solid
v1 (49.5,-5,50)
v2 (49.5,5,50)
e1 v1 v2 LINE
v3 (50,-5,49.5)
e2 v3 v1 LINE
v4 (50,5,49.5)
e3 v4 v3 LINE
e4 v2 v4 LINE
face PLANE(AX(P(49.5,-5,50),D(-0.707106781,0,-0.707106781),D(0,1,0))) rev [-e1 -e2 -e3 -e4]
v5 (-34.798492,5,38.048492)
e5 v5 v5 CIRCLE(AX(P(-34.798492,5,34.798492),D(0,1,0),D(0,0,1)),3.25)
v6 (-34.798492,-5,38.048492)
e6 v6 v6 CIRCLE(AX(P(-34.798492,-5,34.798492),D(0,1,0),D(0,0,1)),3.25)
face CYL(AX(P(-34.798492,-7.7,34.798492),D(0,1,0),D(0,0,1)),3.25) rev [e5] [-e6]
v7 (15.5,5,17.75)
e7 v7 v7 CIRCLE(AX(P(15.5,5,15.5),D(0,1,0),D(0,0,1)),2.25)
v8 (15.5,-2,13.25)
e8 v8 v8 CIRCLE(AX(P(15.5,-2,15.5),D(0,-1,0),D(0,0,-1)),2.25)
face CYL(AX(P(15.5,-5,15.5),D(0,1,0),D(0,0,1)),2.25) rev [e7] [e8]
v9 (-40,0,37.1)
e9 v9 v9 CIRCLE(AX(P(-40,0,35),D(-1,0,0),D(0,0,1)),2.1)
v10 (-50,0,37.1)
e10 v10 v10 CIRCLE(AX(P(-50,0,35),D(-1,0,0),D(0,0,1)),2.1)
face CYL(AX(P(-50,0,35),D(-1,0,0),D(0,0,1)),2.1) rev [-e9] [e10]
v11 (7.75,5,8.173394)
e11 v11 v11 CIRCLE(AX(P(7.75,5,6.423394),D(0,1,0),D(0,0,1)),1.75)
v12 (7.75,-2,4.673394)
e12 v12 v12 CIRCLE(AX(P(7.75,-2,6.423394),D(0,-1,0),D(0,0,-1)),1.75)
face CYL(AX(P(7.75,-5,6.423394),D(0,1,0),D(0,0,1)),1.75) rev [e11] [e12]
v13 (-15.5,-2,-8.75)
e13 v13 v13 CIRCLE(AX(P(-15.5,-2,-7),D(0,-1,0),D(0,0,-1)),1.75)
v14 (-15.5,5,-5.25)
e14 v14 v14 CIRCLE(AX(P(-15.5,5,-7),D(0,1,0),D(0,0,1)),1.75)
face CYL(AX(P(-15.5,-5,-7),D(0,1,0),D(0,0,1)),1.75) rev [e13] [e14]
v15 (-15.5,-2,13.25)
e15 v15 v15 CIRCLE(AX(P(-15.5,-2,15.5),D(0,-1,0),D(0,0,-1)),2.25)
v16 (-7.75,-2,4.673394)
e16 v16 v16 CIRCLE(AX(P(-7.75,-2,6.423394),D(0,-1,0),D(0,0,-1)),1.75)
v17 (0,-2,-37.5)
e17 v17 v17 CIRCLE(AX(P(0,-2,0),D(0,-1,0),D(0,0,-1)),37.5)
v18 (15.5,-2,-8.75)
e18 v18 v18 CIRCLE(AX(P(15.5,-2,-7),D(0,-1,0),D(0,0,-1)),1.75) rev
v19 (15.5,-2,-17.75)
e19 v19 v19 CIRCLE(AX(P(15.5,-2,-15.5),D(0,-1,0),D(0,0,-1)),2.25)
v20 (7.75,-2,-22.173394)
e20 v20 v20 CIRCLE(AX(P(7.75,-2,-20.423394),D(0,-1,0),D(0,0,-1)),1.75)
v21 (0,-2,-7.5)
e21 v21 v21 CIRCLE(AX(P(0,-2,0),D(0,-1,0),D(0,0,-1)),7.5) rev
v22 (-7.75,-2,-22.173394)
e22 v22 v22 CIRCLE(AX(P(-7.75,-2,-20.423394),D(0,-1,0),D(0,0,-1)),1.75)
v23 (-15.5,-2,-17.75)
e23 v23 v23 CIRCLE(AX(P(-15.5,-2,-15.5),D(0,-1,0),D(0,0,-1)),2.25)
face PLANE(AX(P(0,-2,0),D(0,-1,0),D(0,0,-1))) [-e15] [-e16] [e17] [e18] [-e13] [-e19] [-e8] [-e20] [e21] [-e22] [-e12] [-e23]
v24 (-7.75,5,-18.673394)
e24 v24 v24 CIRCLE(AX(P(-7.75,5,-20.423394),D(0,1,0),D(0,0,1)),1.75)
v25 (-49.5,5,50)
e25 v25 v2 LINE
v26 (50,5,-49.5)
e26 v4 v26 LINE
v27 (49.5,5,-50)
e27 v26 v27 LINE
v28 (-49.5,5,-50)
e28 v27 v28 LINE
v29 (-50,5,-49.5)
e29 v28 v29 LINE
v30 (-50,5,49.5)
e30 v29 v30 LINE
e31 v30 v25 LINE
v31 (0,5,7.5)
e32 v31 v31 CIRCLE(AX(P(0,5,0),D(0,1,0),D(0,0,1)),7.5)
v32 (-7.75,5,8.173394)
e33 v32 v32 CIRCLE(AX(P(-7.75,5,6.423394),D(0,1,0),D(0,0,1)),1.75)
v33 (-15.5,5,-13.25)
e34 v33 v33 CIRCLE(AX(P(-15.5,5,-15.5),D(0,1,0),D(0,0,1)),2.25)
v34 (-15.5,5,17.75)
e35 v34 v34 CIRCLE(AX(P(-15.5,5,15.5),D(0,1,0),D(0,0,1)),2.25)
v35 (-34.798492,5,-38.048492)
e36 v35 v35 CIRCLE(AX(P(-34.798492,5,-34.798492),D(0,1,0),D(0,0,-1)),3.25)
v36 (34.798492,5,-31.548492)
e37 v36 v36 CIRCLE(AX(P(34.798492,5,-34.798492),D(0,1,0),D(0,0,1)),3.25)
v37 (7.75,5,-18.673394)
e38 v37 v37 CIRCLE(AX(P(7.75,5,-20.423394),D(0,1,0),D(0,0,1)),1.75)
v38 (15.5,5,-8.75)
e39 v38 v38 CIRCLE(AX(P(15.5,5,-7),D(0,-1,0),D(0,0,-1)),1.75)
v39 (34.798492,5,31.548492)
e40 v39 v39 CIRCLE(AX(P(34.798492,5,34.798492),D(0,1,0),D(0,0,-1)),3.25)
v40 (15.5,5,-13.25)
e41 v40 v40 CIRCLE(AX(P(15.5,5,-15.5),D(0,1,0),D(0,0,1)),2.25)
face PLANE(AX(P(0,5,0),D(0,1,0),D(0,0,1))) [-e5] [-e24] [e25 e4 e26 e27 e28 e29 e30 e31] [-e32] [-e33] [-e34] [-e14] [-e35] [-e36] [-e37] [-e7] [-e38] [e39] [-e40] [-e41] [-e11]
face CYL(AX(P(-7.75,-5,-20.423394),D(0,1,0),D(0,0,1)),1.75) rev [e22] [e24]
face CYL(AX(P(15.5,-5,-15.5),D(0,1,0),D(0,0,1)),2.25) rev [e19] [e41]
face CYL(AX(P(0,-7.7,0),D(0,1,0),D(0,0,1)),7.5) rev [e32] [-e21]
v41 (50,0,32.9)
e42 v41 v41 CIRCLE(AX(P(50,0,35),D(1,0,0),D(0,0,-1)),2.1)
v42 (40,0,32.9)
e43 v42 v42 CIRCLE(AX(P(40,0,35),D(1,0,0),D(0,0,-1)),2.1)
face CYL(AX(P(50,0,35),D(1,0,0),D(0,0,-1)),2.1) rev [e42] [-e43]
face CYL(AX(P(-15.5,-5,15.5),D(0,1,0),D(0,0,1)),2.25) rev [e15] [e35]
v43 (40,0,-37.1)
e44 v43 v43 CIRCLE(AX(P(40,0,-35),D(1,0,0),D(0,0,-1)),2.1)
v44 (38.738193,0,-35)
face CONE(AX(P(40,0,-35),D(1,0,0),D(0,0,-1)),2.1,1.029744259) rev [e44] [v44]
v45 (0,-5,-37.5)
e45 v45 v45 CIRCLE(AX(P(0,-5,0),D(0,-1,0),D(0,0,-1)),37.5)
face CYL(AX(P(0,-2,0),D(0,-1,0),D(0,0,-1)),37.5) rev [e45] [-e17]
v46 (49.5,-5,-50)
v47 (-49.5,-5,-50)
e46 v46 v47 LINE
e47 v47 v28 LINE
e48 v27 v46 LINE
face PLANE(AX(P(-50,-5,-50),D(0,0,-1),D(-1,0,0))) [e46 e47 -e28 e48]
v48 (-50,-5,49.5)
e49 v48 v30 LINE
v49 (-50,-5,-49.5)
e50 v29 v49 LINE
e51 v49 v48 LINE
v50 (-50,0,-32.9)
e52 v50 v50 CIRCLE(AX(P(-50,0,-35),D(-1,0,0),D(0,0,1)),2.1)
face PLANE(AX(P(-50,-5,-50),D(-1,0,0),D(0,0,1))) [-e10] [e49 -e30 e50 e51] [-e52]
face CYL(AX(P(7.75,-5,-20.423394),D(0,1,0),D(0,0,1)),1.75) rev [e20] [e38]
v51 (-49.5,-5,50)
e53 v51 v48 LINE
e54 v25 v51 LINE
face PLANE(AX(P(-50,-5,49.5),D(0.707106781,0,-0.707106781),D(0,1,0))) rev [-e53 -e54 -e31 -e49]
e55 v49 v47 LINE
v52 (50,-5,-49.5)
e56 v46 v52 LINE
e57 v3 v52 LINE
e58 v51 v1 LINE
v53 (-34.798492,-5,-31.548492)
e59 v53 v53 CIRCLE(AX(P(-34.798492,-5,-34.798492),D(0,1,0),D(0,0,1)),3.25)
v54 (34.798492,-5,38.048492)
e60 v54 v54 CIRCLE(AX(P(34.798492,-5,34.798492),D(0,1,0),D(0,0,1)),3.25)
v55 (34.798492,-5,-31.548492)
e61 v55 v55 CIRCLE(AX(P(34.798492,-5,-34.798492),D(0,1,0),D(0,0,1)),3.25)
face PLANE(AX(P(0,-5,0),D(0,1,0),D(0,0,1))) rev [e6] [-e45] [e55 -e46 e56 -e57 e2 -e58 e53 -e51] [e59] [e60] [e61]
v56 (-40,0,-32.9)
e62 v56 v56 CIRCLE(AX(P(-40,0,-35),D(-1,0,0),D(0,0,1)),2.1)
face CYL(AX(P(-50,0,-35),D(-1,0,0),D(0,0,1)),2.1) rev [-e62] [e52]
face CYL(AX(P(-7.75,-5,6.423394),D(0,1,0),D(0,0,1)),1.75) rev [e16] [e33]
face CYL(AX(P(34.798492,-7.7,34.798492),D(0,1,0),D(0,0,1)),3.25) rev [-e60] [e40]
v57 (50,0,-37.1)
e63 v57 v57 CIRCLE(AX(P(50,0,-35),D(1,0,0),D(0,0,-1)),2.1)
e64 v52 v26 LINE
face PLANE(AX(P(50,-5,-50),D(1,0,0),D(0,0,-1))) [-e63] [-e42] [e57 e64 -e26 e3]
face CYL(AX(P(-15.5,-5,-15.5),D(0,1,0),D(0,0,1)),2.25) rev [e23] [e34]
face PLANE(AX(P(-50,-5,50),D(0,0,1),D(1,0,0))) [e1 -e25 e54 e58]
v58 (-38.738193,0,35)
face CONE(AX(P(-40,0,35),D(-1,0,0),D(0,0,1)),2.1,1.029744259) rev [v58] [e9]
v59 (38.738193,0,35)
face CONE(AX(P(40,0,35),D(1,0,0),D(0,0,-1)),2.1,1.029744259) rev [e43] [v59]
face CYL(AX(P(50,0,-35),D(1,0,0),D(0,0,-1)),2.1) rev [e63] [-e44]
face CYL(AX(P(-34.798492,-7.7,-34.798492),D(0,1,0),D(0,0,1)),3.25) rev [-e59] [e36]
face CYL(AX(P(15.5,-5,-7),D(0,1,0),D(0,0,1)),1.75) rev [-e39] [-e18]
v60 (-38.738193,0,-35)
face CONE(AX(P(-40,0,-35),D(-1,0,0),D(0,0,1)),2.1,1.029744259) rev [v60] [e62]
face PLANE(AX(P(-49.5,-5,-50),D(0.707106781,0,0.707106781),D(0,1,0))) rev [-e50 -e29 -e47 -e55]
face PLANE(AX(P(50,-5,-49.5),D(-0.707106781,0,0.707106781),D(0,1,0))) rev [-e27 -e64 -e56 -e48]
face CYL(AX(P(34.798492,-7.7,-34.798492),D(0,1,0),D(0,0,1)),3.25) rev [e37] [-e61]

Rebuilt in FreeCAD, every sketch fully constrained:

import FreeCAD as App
import Part
import Sketcher
from FreeCAD import Vector
Q = App.Units.Quantity


def edges_at(feature, points):
    """Names of the edges that pass closest to the given points."""
    edges = feature.Shape.Edges
    near = lambda p: min(range(len(edges)), key=lambda i: edges[i].distToShape(Part.Vertex(*p))[0])
    return sorted({f"Edge{near(p) + 1}" for p in points})

doc = App.newDocument("Part")
body = doc.addObject("PartDesign::Body", "Body")

# Sketch on XZ plane
sketch1 = doc.addObject("Sketcher::SketchObject", "Sketch")
body.addObject(sketch1)
sketch1.AttachmentSupport = (doc.XZ_Plane, [""])
sketch1.MapMode = "FlatFace"
sketch1.addGeometry([
    Part.LineSegment(Vector(-50, -50, 0), Vector(-50, 50, 0)),
    Part.LineSegment(Vector(-50, 50, 0), Vector(50, 50, 0)),
    Part.LineSegment(Vector(50, 50, 0), Vector(50, -50, 0)),
    Part.LineSegment(Vector(50, -50, 0), Vector(-50, -50, 0)),
], False)
sketch1.addConstraint([
    Sketcher.Constraint("Coincident", 0, 2, 1, 1),
    Sketcher.Constraint("Coincident", 1, 2, 2, 1),
    Sketcher.Constraint("Coincident", 2, 2, 3, 1),
    Sketcher.Constraint("Coincident", 3, 2, 0, 1),
    Sketcher.Constraint("Vertical", 0),
    Sketcher.Constraint("Horizontal", 1),
    Sketcher.Constraint("Vertical", 2),
    Sketcher.Constraint("Horizontal", 3),
    Sketcher.Constraint("Symmetric", 0, 2, 2, 2, -1, 1),
    Sketcher.Constraint("Equal", 3, 0),
    Sketcher.Constraint("DistanceX", 1, 1, 1, 2, Q("100 mm")),
])
pad1 = doc.addObject("PartDesign::Pad", "Pad")
body.addObject(pad1)
pad1.Profile = sketch1
pad1.Type = "TwoLengths"
pad1.Length = 5
pad1.Length2 = 5
pad1.Reversed = True

# Sketch on XZ plane
sketch2 = doc.addObject("Sketcher::SketchObject", "Sketch001")
body.addObject(sketch2)
sketch2.AttachmentSupport = (doc.XZ_Plane, [""])
sketch2.MapMode = "FlatFace"
sketch2.AttachmentOffset = App.Placement(Vector(0, 0, -5), App.Rotation())
sketch2.addGeometry([
    Part.Circle(Vector(0, 0, 0), Vector(0, 0, 1), 7.5),  # 0
    Part.Circle(Vector(-34.798492, -34.798492, 0), Vector(0, 0, 1), 3.25),  # 1
    Part.Circle(Vector(34.798492, -34.798492, 0), Vector(0, 0, 1), 3.25),  # 2
    Part.Circle(Vector(34.798492, 34.798492, 0), Vector(0, 0, 1), 3.25),  # 3
    Part.Circle(Vector(-34.798492, 34.798492, 0), Vector(0, 0, 1), 3.25),  # 4
], False)
sketch2.addConstraint([
    Sketcher.Constraint("Coincident", 0, 3, -1, 1),
    Sketcher.Constraint("Equal", 1, 2),
    Sketcher.Constraint("Equal", 2, 3),
    Sketcher.Constraint("Equal", 3, 4),
    Sketcher.Constraint("Symmetric", 1, 3, 3, 3, -1, 1),
    Sketcher.Constraint("Symmetric", 2, 3, 4, 3, -1, 1),
    Sketcher.Constraint("Symmetric", 1, 3, 2, 3, -2),
    Sketcher.Constraint("Diameter", 0, Q("15 mm")),
    Sketcher.Constraint("Diameter", 1, Q("6.5 mm")),
    Sketcher.Constraint("DistanceX", 1, 3, -1, 1, Q("34.798492 mm")),
    Sketcher.Constraint("DistanceY", 1, 3, -1, 1, Q("34.798492 mm")),
])
pocket1 = doc.addObject("PartDesign::Pocket", "Pocket")
body.addObject(pocket1)
pocket1.Profile = sketch2
pocket1.Length = 12.7
pocket1.Reversed = True

# Sketch on XZ plane
sketch3 = doc.addObject("Sketcher::SketchObject", "Sketch002")
body.addObject(sketch3)
sketch3.AttachmentSupport = (doc.XZ_Plane, [""])
sketch3.MapMode = "FlatFace"
sketch3.addGeometry([
    Part.LineSegment(Vector(-38.738193, -35, 0), Vector(-50, -35, 0)),
    Part.LineSegment(Vector(-50, -35, 0), Vector(-50, -32.9, 0)),
    Part.LineSegment(Vector(-50, -32.9, 0), Vector(-40, -32.9, 0)),
    Part.LineSegment(Vector(-40, -32.9, 0), Vector(-38.738193, -35, 0)),
], False)
sketch3.addGeometry(Part.LineSegment(Vector(-50, -35, 0), Vector(-38.738193, -35, 0)), True)  # axis
sketch3.addConstraint([
    Sketcher.Constraint("Coincident", 0, 2, 1, 1),
    Sketcher.Constraint("Coincident", 1, 2, 2, 1),
    Sketcher.Constraint("Coincident", 2, 2, 3, 1),
    Sketcher.Constraint("Coincident", 3, 2, 0, 1),
    Sketcher.Constraint("Horizontal", 0),
    Sketcher.Constraint("Vertical", 1),
    Sketcher.Constraint("Horizontal", 2),
    Sketcher.Constraint("Horizontal", 4),
    Sketcher.Constraint("Coincident", 4, 1, 0, 2),
    Sketcher.Constraint("Equal", 0, 4),
    Sketcher.Constraint("DistanceX", 2, 1, 2, 2, Q("10 mm")),
    Sketcher.Constraint("Angle", 3, Q("-59 deg")),
    Sketcher.Constraint("DistanceY", 1, 1, 1, 2, Q("2.1 mm")),
    Sketcher.Constraint("DistanceX", 0, 2, -1, 1, Q("50 mm")),
    Sketcher.Constraint("DistanceY", 0, 2, -1, 1, Q("35 mm")),
])
groove = doc.addObject("PartDesign::Groove", "Groove")
body.addObject(groove)
groove.Profile = sketch3
groove.ReferenceAxis = (sketch3, ["Axis0"])
groove.Angle = 360
doc.recompute()

linearpattern = doc.addObject("PartDesign::LinearPattern", "LinearPattern")
body.addObject(linearpattern)
linearpattern.Originals = [groove]
linearpattern.Direction = (doc.Z_Axis, [""])
linearpattern.Mode = "offset"
linearpattern.Offset = 70
linearpattern.Occurrences = 2
body.Tip = linearpattern

# Sketch on XZ plane
sketch4 = doc.addObject("Sketcher::SketchObject", "Sketch003")
body.addObject(sketch4)
sketch4.AttachmentSupport = (doc.XZ_Plane, [""])
sketch4.MapMode = "FlatFace"
sketch4.AttachmentOffset = App.Placement(Vector(0, 0, 5), App.Rotation())
sketch4.addGeometry(Part.Circle(Vector(0, 0, 0), Vector(0, 0, 1), 37.5), False)
sketch4.addConstraint([
    Sketcher.Constraint("Coincident", 0, 3, -1, 1),
    Sketcher.Constraint("Diameter", 0, Q("75 mm")),
])
pocket2 = doc.addObject("PartDesign::Pocket", "Pocket001")
body.addObject(pocket2)
pocket2.Profile = sketch4
pocket2.Length = 3
doc.recompute()

chamfer = doc.addObject("PartDesign::Chamfer", "Chamfer")
body.addObject(chamfer)
chamfer.Base = (pocket2, edges_at(pocket2, [
    (-50, 0, -50),
    (50, 0, -50),
    (50, 0, 50),
    (-50, 0, 50),
]))
chamfer.Size = 0.5
doc.recompute()

mirrored = doc.addObject("PartDesign::Mirrored", "Mirrored")
body.addObject(mirrored)
mirrored.Originals = [groove]
mirrored.MirrorPlane = (doc.YZ_Plane, [""])
body.Tip = mirrored

# Sketch on XZ plane
sketch5 = doc.addObject("Sketcher::SketchObject", "Sketch004")
body.addObject(sketch5)
sketch5.AttachmentSupport = (doc.XZ_Plane, [""])
sketch5.MapMode = "FlatFace"
sketch5.addGeometry([
    Part.LineSegment(Vector(50, 35, 0), Vector(38.738193, 35, 0)),
    Part.LineSegment(Vector(38.738193, 35, 0), Vector(40, 37.1, 0)),
    Part.LineSegment(Vector(40, 37.1, 0), Vector(50, 37.1, 0)),
    Part.LineSegment(Vector(50, 37.1, 0), Vector(50, 35, 0)),
], False)
sketch5.addGeometry(Part.LineSegment(Vector(38.738193, 35, 0), Vector(50, 35, 0)), True)  # axis
sketch5.addConstraint([
    Sketcher.Constraint("Coincident", 0, 2, 1, 1),
    Sketcher.Constraint("Coincident", 1, 2, 2, 1),
    Sketcher.Constraint("Coincident", 2, 2, 3, 1),
    Sketcher.Constraint("Coincident", 3, 2, 0, 1),
    Sketcher.Constraint("Horizontal", 0),
    Sketcher.Constraint("Horizontal", 2),
    Sketcher.Constraint("Vertical", 3),
    Sketcher.Constraint("Horizontal", 4),
    Sketcher.Constraint("Coincident", 4, 1, 0, 2),
    Sketcher.Constraint("Vertical", 2, 2, 4, 2),
    Sketcher.Constraint("DistanceX", 2, 1, 2, 2, Q("10 mm")),
    Sketcher.Constraint("Angle", 1, Q("59 deg")),
    Sketcher.Constraint("DistanceY", 3, 2, 3, 1, Q("2.1 mm")),
    Sketcher.Constraint("DistanceY", -1, 1, 0, 2, Q("35 mm")),
    Sketcher.Constraint("DistanceX", -1, 1, 1, 2, Q("40 mm")),
])
groove2 = doc.addObject("PartDesign::Groove", "Groove001")
body.addObject(groove2)
groove2.Profile = sketch5
groove2.ReferenceAxis = (sketch5, ["Axis0"])
groove2.Angle = 360

# Sketch on XZ plane
sketch6 = doc.addObject("Sketcher::SketchObject", "Sketch005")
body.addObject(sketch6)
sketch6.AttachmentSupport = (doc.XZ_Plane, [""])
sketch6.MapMode = "FlatFace"
sketch6.AttachmentOffset = App.Placement(Vector(0, 0, -5), App.Rotation())
sketch6.addGeometry([
    Part.Circle(Vector(7.75, -20.423394, 0), Vector(0, 0, 1), 1.75),  # 0
    Part.Circle(Vector(-7.75, -20.423394, 0), Vector(0, 0, 1), 1.75),  # 1
    Part.Circle(Vector(15.5, -7, 0), Vector(0, 0, 1), 1.75),  # 2
    Part.Circle(Vector(7.75, 6.423394, 0), Vector(0, 0, 1), 1.75),  # 3
    Part.Circle(Vector(-7.75, 6.423394, 0), Vector(0, 0, 1), 1.75),  # 4
    Part.Circle(Vector(-15.5, -7, 0), Vector(0, 0, 1), 1.75),  # 5
], False)
sketch6.addConstraint([
    Sketcher.Constraint("Equal", 0, 1),
    Sketcher.Constraint("Equal", 1, 2),
    Sketcher.Constraint("Equal", 2, 3),
    Sketcher.Constraint("Equal", 3, 4),
    Sketcher.Constraint("Equal", 4, 5),
    Sketcher.Constraint("Symmetric", 0, 3, 1, 3, -2),
    Sketcher.Constraint("Symmetric", 3, 3, 4, 3, -2),
    Sketcher.Constraint("Symmetric", 2, 3, 5, 3, -2),
    Sketcher.Constraint("Vertical", 0, 3, 3, 3),
    Sketcher.Constraint("Diameter", 0, Q("3.5 mm")),
    Sketcher.Constraint("DistanceY", 2, 3, -1, 1, Q("7 mm")),
    Sketcher.Constraint("DistanceX", 5, 3, 2, 3, Q("31 mm")),
    Sketcher.Constraint("DistanceX", 1, 3, 0, 3, Q("15.5 mm")),
    Sketcher.Constraint("DistanceY", 0, 3, -1, 1, Q("20.423394 mm")),
    Sketcher.Constraint("DistanceY", -1, 1, 3, 3, Q("6.423394 mm")),
])
pocket3 = doc.addObject("PartDesign::Pocket", "Pocket002")
body.addObject(pocket3)
pocket3.Profile = sketch6
pocket3.Type = "ThroughAll"
pocket3.Reversed = True

# Sketch on XZ plane
sketch7 = doc.addObject("Sketcher::SketchObject", "Sketch006")
body.addObject(sketch7)
sketch7.AttachmentSupport = (doc.XZ_Plane, [""])
sketch7.MapMode = "FlatFace"
sketch7.AttachmentOffset = App.Placement(Vector(0, 0, -5), App.Rotation())
sketch7.addGeometry([
    Part.Circle(Vector(-15.5, 15.5, 0), Vector(0, 0, 1), 2.25),
    Part.Circle(Vector(-15.5, -15.5, 0), Vector(0, 0, 1), 2.25),
    Part.Circle(Vector(15.5, -15.5, 0), Vector(0, 0, 1), 2.25),
    Part.Circle(Vector(15.5, 15.5, 0), Vector(0, 0, 1), 2.25),
], False)
sketch7.addConstraint([
    Sketcher.Constraint("Equal", 0, 1),
    Sketcher.Constraint("Equal", 1, 2),
    Sketcher.Constraint("Equal", 2, 3),
    Sketcher.Constraint("Symmetric", 0, 3, 2, 3, -1, 1),
    Sketcher.Constraint("Symmetric", 1, 3, 3, 3, -1, 1),
    Sketcher.Constraint("Symmetric", 1, 3, 2, 3, -2),
    Sketcher.Constraint("Diameter", 0, Q("4.5 mm")),
    Sketcher.Constraint("DistanceY", 1, 3, 0, 3, Q("31 mm")),
    Sketcher.Constraint("DistanceX", 1, 3, 2, 3, Q("31 mm")),
])
pocket4 = doc.addObject("PartDesign::Pocket", "Pocket003")
body.addObject(pocket4)
pocket4.Profile = sketch7
pocket4.Length = 10
pocket4.Reversed = True

doc.recompute()
